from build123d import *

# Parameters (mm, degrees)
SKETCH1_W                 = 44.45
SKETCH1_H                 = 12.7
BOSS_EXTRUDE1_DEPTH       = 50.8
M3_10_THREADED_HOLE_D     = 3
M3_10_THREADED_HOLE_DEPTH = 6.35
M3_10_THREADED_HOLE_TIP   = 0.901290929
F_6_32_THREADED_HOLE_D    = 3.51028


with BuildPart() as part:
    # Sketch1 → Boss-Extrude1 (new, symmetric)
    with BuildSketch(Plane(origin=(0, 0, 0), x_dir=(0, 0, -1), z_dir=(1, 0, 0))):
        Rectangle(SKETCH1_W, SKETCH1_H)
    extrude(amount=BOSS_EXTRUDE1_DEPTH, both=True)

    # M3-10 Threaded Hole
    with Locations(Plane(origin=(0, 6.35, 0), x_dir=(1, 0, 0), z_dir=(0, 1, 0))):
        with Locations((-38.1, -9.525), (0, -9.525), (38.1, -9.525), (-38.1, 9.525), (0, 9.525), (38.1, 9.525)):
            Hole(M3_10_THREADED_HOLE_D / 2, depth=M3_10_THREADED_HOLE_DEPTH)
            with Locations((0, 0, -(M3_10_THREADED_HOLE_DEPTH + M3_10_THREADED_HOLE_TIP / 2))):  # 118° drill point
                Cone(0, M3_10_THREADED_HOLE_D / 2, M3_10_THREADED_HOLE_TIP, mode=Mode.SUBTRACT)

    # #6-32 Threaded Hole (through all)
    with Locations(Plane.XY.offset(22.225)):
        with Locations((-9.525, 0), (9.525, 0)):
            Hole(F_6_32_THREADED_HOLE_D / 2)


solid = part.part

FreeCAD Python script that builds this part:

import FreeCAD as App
import Part
import Sketcher
from FreeCAD import Vector
Q = App.Units.Quantity


def add_polygon(sketch, points):
    """Adds a closed chain of lines whose ends are joined by coincident constraints."""
    first, n = sketch.GeometryCount, len(points)
    for a, b in zip(points, points[1:] + points[:1]):
        sketch.addGeometry(Part.LineSegment(App.Vector(*a, 0), App.Vector(*b, 0)), False)
    for i in range(n):
        sketch.addConstraint(Sketcher.Constraint("Coincident", first + i, 2, first + (i + 1) % n, 1))

doc = App.newDocument("Part")
params = doc.addObject("Spreadsheet::Sheet", "Params")
for row, (alias, value) in enumerate([
    ("sketch1_width", "0.5 in"),
    ("sketch1_height", "1.75 in"),
    ("pad1_length", "4 in"),
    ("hole_diameter", "3 mm"),
    ("hole_depth", "0.25 in"),
    ("hole2_diameter", "0.1382 in"),
], start=1):
    params.set(f"A{row}", alias)
    params.set(f"B{row}", "=" + value)
    params.setAlias(f"B{row}", alias)

body = doc.addObject("PartDesign::Body", "Body")

# Sketch on YZ plane
sketch1 = body.newObject("Sketcher::SketchObject", "Sketch")
sketch1.AttachmentSupport = (doc.getObject("YZ_Plane"), [""])
sketch1.MapMode = "FlatFace"
add_polygon(sketch1, [(6, 22), (-6, 22), (-6, -22), (6, -22)])  # lines 0-3
sketch1.addConstraint([
    Sketcher.Constraint("Horizontal", 0),
    Sketcher.Constraint("Vertical", 1),
    Sketcher.Constraint("Horizontal", 2),
    Sketcher.Constraint("Vertical", 3),
    Sketcher.Constraint("Symmetric", 0, 2, 2, 2, -1, 1),
    Sketcher.Constraint("DistanceX", 0, 2, 0, 1, Q("0.5 in")),
    Sketcher.Constraint("DistanceY", 1, 2, 1, 1, Q("1.75 in")),
])
sketch1.setExpression("Constraints[9]", "Params.sketch1_width")
sketch1.setExpression("Constraints[10]", "Params.sketch1_height")
pad1 = body.newObject("PartDesign::Pad", "Pad")
pad1.Profile = sketch1
pad1.setExpression("Length", "Params.pad1_length")
pad1.Midplane = True

# Sketch on XZ plane
sketch2 = body.newObject("Sketcher::SketchObject", "Sketch001")
sketch2.AttachmentSupport = (doc.getObject("XZ_Plane"), [""])
sketch2.MapMode = "FlatFace"
sketch2.AttachmentOffset = App.Placement(Vector(0, 0, -0.25 * 25.4), App.Rotation())
sketch2.addGeometry([
    Part.Circle(Vector(-38.1, 9.5, 0), Vector(0, 0, 1), 1.5),  # 0
    Part.Circle(Vector(0, 9.5, 0), Vector(0, 0, 1), 1.5),  # 1
    Part.Circle(Vector(38.1, 9.5, 0), Vector(0, 0, 1), 1.5),  # 2
    Part.Circle(Vector(-38.1, -9.5, 0), Vector(0, 0, 1), 1.5),  # 3
    Part.Circle(Vector(0, -9.5, 0), Vector(0, 0, 1), 1.5),  # 4
    Part.Circle(Vector(38.1, -9.5, 0), Vector(0, 0, 1), 1.5),  # 5
], False)
sketch2.addConstraint([
    Sketcher.Constraint("Equal", 0, 1),
    Sketcher.Constraint("Equal", 1, 2),
    Sketcher.Constraint("Equal", 2, 3),
    Sketcher.Constraint("Equal", 3, 4),
    Sketcher.Constraint("Equal", 4, 5),
    Sketcher.Constraint("Symmetric", 2, 3, 3, 3, -1, 1),
    Sketcher.Constraint("Symmetric", 1, 3, 4, 3, -1, 1),
    Sketcher.Constraint("Symmetric", 0, 3, 5, 3, -1, 1),
    Sketcher.Constraint("Symmetric", 0, 3, 2, 3, -2),
    Sketcher.Constraint("PointOnObject", 1, 3, -2),
    Sketcher.Constraint("Horizontal", 0, 3, 1, 3),
    Sketcher.Constraint("DistanceX", 0, 3, 2, 3, Q("3 in")),
    Sketcher.Constraint("Diameter", 0, 3.0),
    Sketcher.Constraint("DistanceY", 3, 3, 0, 3, Q("0.75 in")),
])
doc.recompute()
hole = body.newObject("PartDesign::Hole", "Hole")
hole.Profile = sketch2
hole.ThreadType = "None"
hole.setExpression("Diameter", "Params.hole_diameter")
hole.DepthType = "Dimension"
hole.setExpression("Depth", "Params.hole_depth")
hole.DrillPoint = "Angled"
hole.DrillPointAngle = 118
hole.Reversed = True

# Sketch on XY plane
sketch3 = body.newObject("Sketcher::SketchObject", "Sketch002")
sketch3.AttachmentSupport = (doc.getObject("XY_Plane"), [""])
sketch3.MapMode = "FlatFace"
sketch3.AttachmentOffset = App.Placement(Vector(0, 0, 0.875 * 25.4), App.Rotation())
sketch3.addGeometry([
    Part.Circle(Vector(-9.5, 0, 0), Vector(0, 0, 1), 1.8),
    Part.Circle(Vector(9.5, 0, 0), Vector(0, 0, 1), 1.8),
], False)
sketch3.addConstraint([
    Sketcher.Constraint("Equal", 0, 1),
    Sketcher.Constraint("Symmetric", 0, 3, 1, 3, -1, 1),
    Sketcher.Constraint("PointOnObject", 0, 3, -1),
    Sketcher.Constraint("Diameter", 0, Q("0.1382 in")),
    Sketcher.Constraint("DistanceX", 0, 3, 1, 3, Q("0.75 in")),
])
doc.recompute()
hole2 = body.newObject("PartDesign::Hole", "Hole001")
hole2.Profile = sketch3
hole2.ThreadType = "None"
hole2.setExpression("Diameter", "Params.hole2_diameter")
hole2.DepthType = "ThroughAll"

doc.recompute()
